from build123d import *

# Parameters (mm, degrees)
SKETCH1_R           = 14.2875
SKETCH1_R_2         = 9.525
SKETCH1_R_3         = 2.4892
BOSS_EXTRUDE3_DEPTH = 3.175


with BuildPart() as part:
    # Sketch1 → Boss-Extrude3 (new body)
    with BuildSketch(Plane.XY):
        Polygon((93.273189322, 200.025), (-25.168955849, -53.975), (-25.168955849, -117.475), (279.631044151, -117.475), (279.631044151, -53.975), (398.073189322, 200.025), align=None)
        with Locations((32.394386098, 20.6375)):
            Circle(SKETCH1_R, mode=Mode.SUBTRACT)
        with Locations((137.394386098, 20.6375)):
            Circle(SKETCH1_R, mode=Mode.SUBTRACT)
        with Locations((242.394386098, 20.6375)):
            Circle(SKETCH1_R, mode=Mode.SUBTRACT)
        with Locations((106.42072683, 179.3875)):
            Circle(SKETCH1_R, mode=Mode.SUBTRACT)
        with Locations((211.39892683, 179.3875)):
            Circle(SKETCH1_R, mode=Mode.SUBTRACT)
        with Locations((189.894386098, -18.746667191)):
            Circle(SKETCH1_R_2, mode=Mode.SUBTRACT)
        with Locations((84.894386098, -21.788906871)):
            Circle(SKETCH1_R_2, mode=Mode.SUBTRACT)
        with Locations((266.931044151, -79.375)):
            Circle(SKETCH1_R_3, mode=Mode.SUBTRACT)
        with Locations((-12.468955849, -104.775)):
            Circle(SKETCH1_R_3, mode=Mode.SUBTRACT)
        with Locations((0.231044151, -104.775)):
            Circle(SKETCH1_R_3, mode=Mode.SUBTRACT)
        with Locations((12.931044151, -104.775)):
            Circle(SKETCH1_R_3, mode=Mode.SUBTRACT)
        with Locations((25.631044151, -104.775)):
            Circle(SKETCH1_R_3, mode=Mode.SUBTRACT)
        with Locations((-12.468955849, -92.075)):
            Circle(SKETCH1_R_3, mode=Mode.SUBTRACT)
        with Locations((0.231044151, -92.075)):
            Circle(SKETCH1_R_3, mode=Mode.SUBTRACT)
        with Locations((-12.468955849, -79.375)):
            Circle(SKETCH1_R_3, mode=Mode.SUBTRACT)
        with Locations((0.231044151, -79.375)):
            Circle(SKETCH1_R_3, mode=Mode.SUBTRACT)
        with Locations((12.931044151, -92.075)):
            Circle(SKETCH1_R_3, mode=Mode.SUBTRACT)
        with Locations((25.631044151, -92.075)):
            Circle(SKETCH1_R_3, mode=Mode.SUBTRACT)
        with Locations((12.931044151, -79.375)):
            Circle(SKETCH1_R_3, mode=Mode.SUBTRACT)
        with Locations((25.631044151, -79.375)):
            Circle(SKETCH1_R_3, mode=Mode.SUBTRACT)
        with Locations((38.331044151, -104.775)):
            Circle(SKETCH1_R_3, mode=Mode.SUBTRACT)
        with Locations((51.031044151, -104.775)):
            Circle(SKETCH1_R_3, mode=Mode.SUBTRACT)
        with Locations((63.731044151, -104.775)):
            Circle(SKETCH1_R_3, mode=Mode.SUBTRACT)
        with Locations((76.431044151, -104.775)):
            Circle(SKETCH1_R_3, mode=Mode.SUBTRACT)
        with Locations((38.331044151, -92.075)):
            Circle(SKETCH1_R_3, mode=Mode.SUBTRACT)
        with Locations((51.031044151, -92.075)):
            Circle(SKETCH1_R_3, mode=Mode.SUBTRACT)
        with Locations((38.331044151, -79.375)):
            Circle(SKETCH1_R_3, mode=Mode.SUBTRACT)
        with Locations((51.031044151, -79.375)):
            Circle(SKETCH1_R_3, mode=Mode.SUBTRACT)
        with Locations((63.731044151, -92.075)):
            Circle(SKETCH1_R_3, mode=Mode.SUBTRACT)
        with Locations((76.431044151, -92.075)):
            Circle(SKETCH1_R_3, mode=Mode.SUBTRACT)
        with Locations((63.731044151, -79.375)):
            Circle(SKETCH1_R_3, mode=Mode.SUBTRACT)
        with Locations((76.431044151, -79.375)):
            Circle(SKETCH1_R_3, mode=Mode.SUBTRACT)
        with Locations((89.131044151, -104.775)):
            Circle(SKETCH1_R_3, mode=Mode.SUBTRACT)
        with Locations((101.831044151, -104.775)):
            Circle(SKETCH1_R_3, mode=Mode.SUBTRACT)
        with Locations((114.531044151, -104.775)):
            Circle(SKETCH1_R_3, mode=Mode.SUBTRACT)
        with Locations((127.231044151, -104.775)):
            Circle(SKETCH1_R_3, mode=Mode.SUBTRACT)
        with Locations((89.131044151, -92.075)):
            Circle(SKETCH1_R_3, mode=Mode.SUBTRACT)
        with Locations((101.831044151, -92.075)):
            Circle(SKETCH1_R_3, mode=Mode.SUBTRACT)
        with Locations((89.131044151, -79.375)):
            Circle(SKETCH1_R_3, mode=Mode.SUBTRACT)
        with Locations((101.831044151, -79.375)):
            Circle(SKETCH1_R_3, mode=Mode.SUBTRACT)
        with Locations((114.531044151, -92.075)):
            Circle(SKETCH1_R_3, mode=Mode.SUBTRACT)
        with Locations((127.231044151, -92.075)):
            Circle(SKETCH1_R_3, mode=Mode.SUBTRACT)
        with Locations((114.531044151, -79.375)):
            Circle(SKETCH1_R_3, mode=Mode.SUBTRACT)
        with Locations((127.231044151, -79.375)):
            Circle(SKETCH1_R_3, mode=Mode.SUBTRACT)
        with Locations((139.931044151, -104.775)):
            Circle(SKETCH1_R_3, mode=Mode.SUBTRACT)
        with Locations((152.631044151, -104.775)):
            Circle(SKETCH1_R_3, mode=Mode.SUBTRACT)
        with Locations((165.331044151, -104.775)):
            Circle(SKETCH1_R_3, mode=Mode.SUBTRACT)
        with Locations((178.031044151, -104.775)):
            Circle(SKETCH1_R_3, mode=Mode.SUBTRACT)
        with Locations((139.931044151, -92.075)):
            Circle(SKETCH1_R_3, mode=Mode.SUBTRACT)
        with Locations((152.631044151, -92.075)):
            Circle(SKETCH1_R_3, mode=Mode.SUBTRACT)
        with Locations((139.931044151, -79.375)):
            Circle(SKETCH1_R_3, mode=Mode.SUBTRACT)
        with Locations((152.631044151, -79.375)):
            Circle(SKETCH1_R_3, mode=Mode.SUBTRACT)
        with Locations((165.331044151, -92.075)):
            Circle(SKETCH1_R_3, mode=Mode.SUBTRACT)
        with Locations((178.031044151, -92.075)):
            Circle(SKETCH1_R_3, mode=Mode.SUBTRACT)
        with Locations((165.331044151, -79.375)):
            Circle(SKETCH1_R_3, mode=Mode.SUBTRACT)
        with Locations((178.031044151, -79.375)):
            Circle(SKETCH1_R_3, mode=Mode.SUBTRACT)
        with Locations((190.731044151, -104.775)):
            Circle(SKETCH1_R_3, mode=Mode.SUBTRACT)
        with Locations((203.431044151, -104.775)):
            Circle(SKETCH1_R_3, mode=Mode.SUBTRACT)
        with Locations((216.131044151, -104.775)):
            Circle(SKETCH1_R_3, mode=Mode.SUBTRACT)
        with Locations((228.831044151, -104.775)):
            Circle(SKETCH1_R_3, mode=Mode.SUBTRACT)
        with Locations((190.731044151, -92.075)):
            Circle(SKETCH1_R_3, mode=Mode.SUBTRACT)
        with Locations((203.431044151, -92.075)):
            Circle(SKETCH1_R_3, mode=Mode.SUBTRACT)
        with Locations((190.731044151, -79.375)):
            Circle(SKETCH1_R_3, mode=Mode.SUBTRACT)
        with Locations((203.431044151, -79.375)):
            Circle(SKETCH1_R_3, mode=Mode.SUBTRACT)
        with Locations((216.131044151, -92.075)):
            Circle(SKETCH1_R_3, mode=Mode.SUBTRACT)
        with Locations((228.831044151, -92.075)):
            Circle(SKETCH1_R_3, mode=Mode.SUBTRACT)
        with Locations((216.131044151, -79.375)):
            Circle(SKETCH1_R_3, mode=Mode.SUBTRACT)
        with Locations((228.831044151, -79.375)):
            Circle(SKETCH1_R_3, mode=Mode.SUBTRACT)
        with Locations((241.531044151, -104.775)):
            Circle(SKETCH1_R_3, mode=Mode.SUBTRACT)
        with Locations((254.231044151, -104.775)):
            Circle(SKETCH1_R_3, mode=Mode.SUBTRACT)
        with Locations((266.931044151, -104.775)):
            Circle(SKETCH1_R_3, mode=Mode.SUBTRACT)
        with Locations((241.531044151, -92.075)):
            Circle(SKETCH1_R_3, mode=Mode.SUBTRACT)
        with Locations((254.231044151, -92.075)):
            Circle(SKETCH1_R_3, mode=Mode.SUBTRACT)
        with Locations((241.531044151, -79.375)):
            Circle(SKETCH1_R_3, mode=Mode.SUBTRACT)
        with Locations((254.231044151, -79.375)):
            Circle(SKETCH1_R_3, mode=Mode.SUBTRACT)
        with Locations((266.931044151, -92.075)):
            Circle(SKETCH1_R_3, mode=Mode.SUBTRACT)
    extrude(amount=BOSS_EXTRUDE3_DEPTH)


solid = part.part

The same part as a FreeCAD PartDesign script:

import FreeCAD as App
import Part
import Sketcher

V = App.Vector
Q = App.Units.Quantity

doc = App.newDocument("Part")
params = doc.addObject("Spreadsheet::Sheet", "Params")
for row, (alias, value) in enumerate([
    ("sketch1_diameter", "0.75 in"),
    ("sketch1_width", "12 in"),
    ("sketch1_diameter2", "0.196 in"),
    ("sketch1_diameter3", "1.125 in"),
    ("sketch1_height", "2.5 in"),
    ("pad1_length", "0.125 in"),
], start=1):
    params.set(f"A{row}", alias)
    params.set(f"B{row}", "=" + value)
    params.setAlias(f"B{row}", alias)

body = doc.addObject("PartDesign::Body", "Body")

sketch1 = body.newObject("Sketcher::SketchObject", "Sketch")
sketch1.AttachmentSupport = (doc.getObject("XY_Plane"), [""])
sketch1.MapMode = "FlatFace"
sketch1.addGeometry([
    Part.LineSegment(V(93.3, 200, 0), V(-25.2, -54, 0)),
    Part.LineSegment(V(-25.2, -54, 0), V(-25.2, -117.5, 0)),
    Part.LineSegment(V(-25.2, -117.5, 0), V(279.6, -117.5, 0)),
    Part.LineSegment(V(279.6, -117.5, 0), V(279.6, -54, 0)),
    Part.LineSegment(V(279.6, -54, 0), V(398.1, 200, 0)),
    Part.LineSegment(V(398.1, 200, 0), V(93.3, 200, 0)),
    Part.Circle(V(-12.5, -104.8, 0), V(0, 0, 1), 2.5),
    Part.Circle(V(0.2, -104.8, 0), V(0, 0, 1), 2.5),
    Part.Circle(V(-12.5, -92.1, 0), V(0, 0, 1), 2.5),
    Part.Circle(V(0.2, -92.1, 0), V(0, 0, 1), 2.5),
    Part.Circle(V(12.9, -104.8, 0), V(0, 0, 1), 2.5),
    Part.Circle(V(12.9, -92.1, 0), V(0, 0, 1), 2.5),
    Part.Circle(V(-12.5, -79.4, 0), V(0, 0, 1), 2.5),
    Part.Circle(V(0.2, -79.4, 0), V(0, 0, 1), 2.5),
    Part.Circle(V(12.9, -79.4, 0), V(0, 0, 1), 2.5),
    Part.Circle(V(25.6, -104.8, 0), V(0, 0, 1), 2.5),
    Part.Circle(V(38.3, -104.8, 0), V(0, 0, 1), 2.5),
    Part.Circle(V(25.6, -92.1, 0), V(0, 0, 1), 2.5),
    Part.Circle(V(38.3, -92.1, 0), V(0, 0, 1), 2.5),
    Part.Circle(V(51, -104.8, 0), V(0, 0, 1), 2.5),
    Part.Circle(V(51, -92.1, 0), V(0, 0, 1), 2.5),
    Part.Circle(V(25.6, -79.4, 0), V(0, 0, 1), 2.5),
    Part.Circle(V(38.3, -79.4, 0), V(0, 0, 1), 2.5),
    Part.Circle(V(51, -79.4, 0), V(0, 0, 1), 2.5),
    Part.Circle(V(63.7, -104.8, 0), V(0, 0, 1), 2.5),
    Part.Circle(V(63.7, -92.1, 0), V(0, 0, 1), 2.5),
    Part.Circle(V(76.4, -104.8, 0), V(0, 0, 1), 2.5),
    Part.Circle(V(89.1, -104.8, 0), V(0, 0, 1), 2.5),
    Part.Circle(V(76.4, -92.1, 0), V(0, 0, 1), 2.5),
    Part.Circle(V(89.1, -92.1, 0), V(0, 0, 1), 2.5),
    Part.Circle(V(63.7, -79.4, 0), V(0, 0, 1), 2.5),
    Part.Circle(V(76.4, -79.4, 0), V(0, 0, 1), 2.5),
    Part.Circle(V(89.1, -79.4, 0), V(0, 0, 1), 2.5),
    Part.Circle(V(101.8, -104.8, 0), V(0, 0, 1), 2.5),
    Part.Circle(V(101.8, -92.1, 0), V(0, 0, 1), 2.5),
    Part.Circle(V(114.5, -104.8, 0), V(0, 0, 1), 2.5),
    Part.Circle(V(114.5, -92.1, 0), V(0, 0, 1), 2.5),
    Part.Circle(V(101.8, -79.4, 0), V(0, 0, 1), 2.5),
    Part.Circle(V(114.5, -79.4, 0), V(0, 0, 1), 2.5),
    Part.Circle(V(32.4, 20.6, 0), V(0, 0, 1), 14.3),
    Part.Circle(V(84.9, -21.8, 0), V(0, 0, 1), 9.5),
    Part.Circle(V(127.2, -104.8, 0), V(0, 0, 1), 2.5),
    Part.Circle(V(139.9, -104.8, 0), V(0, 0, 1), 2.5),
    Part.Circle(V(127.2, -92.1, 0), V(0, 0, 1), 2.5),
    Part.Circle(V(139.9, -92.1, 0), V(0, 0, 1), 2.5),
    Part.Circle(V(152.6, -104.8, 0), V(0, 0, 1), 2.5),
    Part.Circle(V(152.6, -92.1, 0), V(0, 0, 1), 2.5),
    Part.Circle(V(127.2, -79.4, 0), V(0, 0, 1), 2.5),
    Part.Circle(V(139.9, -79.4, 0), V(0, 0, 1), 2.5),
    Part.Circle(V(152.6, -79.4, 0), V(0, 0, 1), 2.5),
    Part.Circle(V(165.3, -104.8, 0), V(0, 0, 1), 2.5),
    Part.Circle(V(178, -104.8, 0), V(0, 0, 1), 2.5),
    Part.Circle(V(165.3, -92.1, 0), V(0, 0, 1), 2.5),
    Part.Circle(V(178, -92.1, 0), V(0, 0, 1), 2.5),
    Part.Circle(V(190.7, -104.8, 0), V(0, 0, 1), 2.5),
    Part.Circle(V(190.7, -92.1, 0), V(0, 0, 1), 2.5),
    Part.Circle(V(165.3, -79.4, 0), V(0, 0, 1), 2.5),
    Part.Circle(V(178, -79.4, 0), V(0, 0, 1), 2.5),
    Part.Circle(V(190.7, -79.4, 0), V(0, 0, 1), 2.5),
    Part.Circle(V(203.4, -104.8, 0), V(0, 0, 1), 2.5),
    Part.Circle(V(203.4, -92.1, 0), V(0, 0, 1), 2.5),
    Part.Circle(V(216.1, -104.8, 0), V(0, 0, 1), 2.5),
    Part.Circle(V(228.8, -104.8, 0), V(0, 0, 1), 2.5),
    Part.Circle(V(216.1, -92.1, 0), V(0, 0, 1), 2.5),
    Part.Circle(V(228.8, -92.1, 0), V(0, 0, 1), 2.5),
    Part.Circle(V(203.4, -79.4, 0), V(0, 0, 1), 2.5),
    Part.Circle(V(216.1, -79.4, 0), V(0, 0, 1), 2.5),
    Part.Circle(V(228.8, -79.4, 0), V(0, 0, 1), 2.5),
    Part.Circle(V(241.5, -104.8, 0), V(0, 0, 1), 2.5),
    Part.Circle(V(241.5, -92.1, 0), V(0, 0, 1), 2.5),
    Part.Circle(V(254.2, -104.8, 0), V(0, 0, 1), 2.5),
    Part.Circle(V(266.9, -104.8, 0), V(0, 0, 1), 2.5),
    Part.Circle(V(254.2, -92.1, 0), V(0, 0, 1), 2.5),
    Part.Circle(V(266.9, -92.1, 0), V(0, 0, 1), 2.5),
    Part.Circle(V(241.5, -79.4, 0), V(0, 0, 1), 2.5),
    Part.Circle(V(254.2, -79.4, 0), V(0, 0, 1), 2.5),
    Part.Circle(V(266.9, -79.4, 0), V(0, 0, 1), 2.5),
    Part.Circle(V(189.9, -18.7, 0), V(0, 0, 1), 9.5),
    Part.Circle(V(137.4, 20.6, 0), V(0, 0, 1), 14.3),
    Part.Circle(V(242.4, 20.6, 0), V(0, 0, 1), 14.3),
    Part.Circle(V(106.4, 179.4, 0), V(0, 0, 1), 14.3),
    Part.Circle(V(211.4, 179.4, 0), V(0, 0, 1), 14.3),
], False)
sketch1.addConstraint([
    Sketcher.Constraint("Coincident", 0, 2, 1, 1),
    Sketcher.Constraint("Coincident", 1, 2, 2, 1),
    Sketcher.Constraint("Coincident", 2, 2, 3, 1),
    Sketcher.Constraint("Coincident", 3, 2, 4, 1),
    Sketcher.Constraint("Coincident", 4, 2, 5, 1),
    Sketcher.Constraint("Coincident", 5, 2, 0, 1),
    Sketcher.Constraint("Vertical", 1),
    Sketcher.Constraint("Horizontal", 2),
    Sketcher.Constraint("Vertical", 3),
    Sketcher.Constraint("Horizontal", 5),
    Sketcher.Constraint("Equal", 6, 7),
    Sketcher.Constraint("Equal", 7, 8),
    Sketcher.Constraint("Equal", 8, 9),
    Sketcher.Constraint("Equal", 9, 10),
    Sketcher.Constraint("Equal", 10, 11),
    Sketcher.Constraint("Equal", 11, 12),
    Sketcher.Constraint("Equal", 12, 13),
    Sketcher.Constraint("Equal", 13, 14),
    Sketcher.Constraint("Equal", 14, 15),
    Sketcher.Constraint("Equal", 15, 16),
    Sketcher.Constraint("Equal", 16, 17),
    Sketcher.Constraint("Equal", 17, 18),
    Sketcher.Constraint("Equal", 18, 19),
    Sketcher.Constraint("Equal", 19, 20),
    Sketcher.Constraint("Equal", 20, 21),
    Sketcher.Constraint("Equal", 21, 22),
    Sketcher.Constraint("Equal", 22, 23),
    Sketcher.Constraint("Equal", 23, 24),
    Sketcher.Constraint("Equal", 24, 25),
    Sketcher.Constraint("Equal", 25, 26),
    Sketcher.Constraint("Equal", 26, 27),
    Sketcher.Constraint("Equal", 27, 28),
    Sketcher.Constraint("Equal", 28, 29),
    Sketcher.Constraint("Equal", 29, 30),
    Sketcher.Constraint("Equal", 30, 31),
    Sketcher.Constraint("Equal", 31, 32),
    Sketcher.Constraint("Equal", 32, 33),
    Sketcher.Constraint("Equal", 33, 34),
    Sketcher.Constraint("Equal", 34, 35),
    Sketcher.Constraint("Equal", 35, 36),
    Sketcher.Constraint("Equal", 36, 37),
    Sketcher.Constraint("Equal", 37, 38),
    Sketcher.Constraint("Equal", 38, 41),
    Sketcher.Constraint("Equal", 41, 42),
    Sketcher.Constraint("Equal", 42, 43),
    Sketcher.Constraint("Equal", 43, 44),
    Sketcher.Constraint("Equal", 44, 45),
    Sketcher.Constraint("Equal", 45, 46),
    Sketcher.Constraint("Equal", 46, 47),
    Sketcher.Constraint("Equal", 47, 48),
    Sketcher.Constraint("Equal", 48, 49),
    Sketcher.Constraint("Equal", 49, 50),
    Sketcher.Constraint("Equal", 50, 51),
    Sketcher.Constraint("Equal", 51, 52),
    Sketcher.Constraint("Equal", 52, 53),
    Sketcher.Constraint("Equal", 53, 54),
    Sketcher.Constraint("Equal", 54, 55),
    Sketcher.Constraint("Equal", 55, 56),
    Sketcher.Constraint("Equal", 56, 57),
    Sketcher.Constraint("Equal", 57, 58),
    Sketcher.Constraint("Equal", 58, 59),
    Sketcher.Constraint("Equal", 59, 60),
    Sketcher.Constraint("Equal", 60, 61),
    Sketcher.Constraint("Equal", 61, 62),
    Sketcher.Constraint("Equal", 62, 63),
    Sketcher.Constraint("Equal", 63, 64),
    Sketcher.Constraint("Equal", 64, 65),
    Sketcher.Constraint("Equal", 65, 66),
    Sketcher.Constraint("Equal", 66, 67),
    Sketcher.Constraint("Equal", 67, 68),
    Sketcher.Constraint("Equal", 68, 69),
    Sketcher.Constraint("Equal", 69, 70),
    Sketcher.Constraint("Equal", 70, 71),
    Sketcher.Constraint("Equal", 71, 72),
    Sketcher.Constraint("Equal", 72, 73),
    Sketcher.Constraint("Equal", 73, 74),
    Sketcher.Constraint("Equal", 74, 75),
    Sketcher.Constraint("Equal", 75, 76),
    Sketcher.Constraint("Equal", 40, 77),
    Sketcher.Constraint("Equal", 39, 78),
    Sketcher.Constraint("Equal", 78, 79),
    Sketcher.Constraint("Equal", 79, 80),
    Sketcher.Constraint("Equal", 80, 81),
    Sketcher.Constraint("Parallel", 0, 4),
    Sketcher.Constraint("Horizontal", 6, 3, 7, 3),
    Sketcher.Constraint("Horizontal", 8, 3, 9, 3),
    Sketcher.Constraint("Horizontal", 7, 3, 10, 3),
    Sketcher.Constraint("Horizontal", 9, 3, 11, 3),
    Sketcher.Constraint("Horizontal", 12, 3, 13, 3),
    Sketcher.Constraint("Horizontal", 13, 3, 14, 3),
    Sketcher.Constraint("Horizontal", 10, 3, 15, 3),
    Sketcher.Constraint("Horizontal", 15, 3, 16, 3),
    Sketcher.Constraint("Horizontal", 11, 3, 17, 3),
    Sketcher.Constraint("Horizontal", 17, 3, 18, 3),
    Sketcher.Constraint("Horizontal", 16, 3, 19, 3),
    Sketcher.Constraint("Horizontal", 18, 3, 20, 3),
    Sketcher.Constraint("Horizontal", 14, 3, 21, 3),
    Sketcher.Constraint("Horizontal", 21, 3, 22, 3),
    Sketcher.Constraint("Horizontal", 22, 3, 23, 3),
    Sketcher.Constraint("Horizontal", 19, 3, 24, 3),
    Sketcher.Constraint("Horizontal", 20, 3, 25, 3),
    Sketcher.Constraint("Horizontal", 24, 3, 26, 3),
    Sketcher.Constraint("Horizontal", 26, 3, 27, 3),
    Sketcher.Constraint("Horizontal", 25, 3, 28, 3),
    Sketcher.Constraint("Horizontal", 28, 3, 29, 3),
    Sketcher.Constraint("Horizontal", 23, 3, 30, 3),
    Sketcher.Constraint("Horizontal", 30, 3, 31, 3),
    Sketcher.Constraint("Horizontal", 31, 3, 32, 3),
    Sketcher.Constraint("Horizontal", 27, 3, 33, 3),
    Sketcher.Constraint("Horizontal", 29, 3, 34, 3),
    Sketcher.Constraint("Horizontal", 33, 3, 35, 3),
    Sketcher.Constraint("Horizontal", 34, 3, 36, 3),
    Sketcher.Constraint("Horizontal", 32, 3, 37, 3),
    Sketcher.Constraint("Horizontal", 37, 3, 38, 3),
    Sketcher.Constraint("Horizontal", 35, 3, 41, 3),
    Sketcher.Constraint("Horizontal", 41, 3, 42, 3),
    Sketcher.Constraint("Horizontal", 36, 3, 43, 3),
    Sketcher.Constraint("Horizontal", 43, 3, 44, 3),
    Sketcher.Constraint("Horizontal", 42, 3, 45, 3),
    Sketcher.Constraint("Horizontal", 44, 3, 46, 3),
    Sketcher.Constraint("Horizontal", 38, 3, 47, 3),
    Sketcher.Constraint("Horizontal", 47, 3, 48, 3),
    Sketcher.Constraint("Horizontal", 48, 3, 49, 3),
    Sketcher.Constraint("Horizontal", 45, 3, 50, 3),
    Sketcher.Constraint("Horizontal", 50, 3, 51, 3),
    Sketcher.Constraint("Horizontal", 46, 3, 52, 3),
    Sketcher.Constraint("Horizontal", 52, 3, 53, 3),
    Sketcher.Constraint("Horizontal", 51, 3, 54, 3),
    Sketcher.Constraint("Horizontal", 53, 3, 55, 3),
    Sketcher.Constraint("Horizontal", 49, 3, 56, 3),
    Sketcher.Constraint("Horizontal", 56, 3, 57, 3),
    Sketcher.Constraint("Horizontal", 57, 3, 58, 3),
    Sketcher.Constraint("Horizontal", 54, 3, 59, 3),
    Sketcher.Constraint("Horizontal", 55, 3, 60, 3),
    Sketcher.Constraint("Horizontal", 59, 3, 61, 3),
    Sketcher.Constraint("Horizontal", 61, 3, 62, 3),
    Sketcher.Constraint("Horizontal", 60, 3, 63, 3),
    Sketcher.Constraint("Horizontal", 63, 3, 64, 3),
    Sketcher.Constraint("Horizontal", 58, 3, 65, 3),
    Sketcher.Constraint("Horizontal", 65, 3, 66, 3),
    Sketcher.Constraint("Horizontal", 66, 3, 67, 3),
    Sketcher.Constraint("Horizontal", 62, 3, 68, 3),
    Sketcher.Constraint("Horizontal", 64, 3, 69, 3),
    Sketcher.Constraint("Horizontal", 68, 3, 70, 3),
    Sketcher.Constraint("Horizontal", 70, 3, 71, 3),
    Sketcher.Constraint("Horizontal", 69, 3, 72, 3),
    Sketcher.Constraint("Horizontal", 72, 3, 73, 3),
    Sketcher.Constraint("Horizontal", 67, 3, 74, 3),
    Sketcher.Constraint("Horizontal", 74, 3, 75, 3),
    Sketcher.Constraint("Horizontal", 75, 3, 76, 3),
    Sketcher.Constraint("Horizontal", 39, 3, 78, 3),
    Sketcher.Constraint("Horizontal", 78, 3, 79, 3),
    Sketcher.Constraint("Horizontal", 80, 3, 81, 3),
    Sketcher.Constraint("Horizontal", 0, 2, 3, 2),
    Sketcher.Constraint("Vertical", 6, 3, 8, 3),
    Sketcher.Constraint("Vertical", 7, 3, 9, 3),
    Sketcher.Constraint("Vertical", 10, 3, 11, 3),
    Sketcher.Constraint("Vertical", 8, 3, 12, 3),
    Sketcher.Constraint("Vertical", 9, 3, 13, 3),
    Sketcher.Constraint("Vertical", 11, 3, 14, 3),
    Sketcher.Constraint("Vertical", 15, 3, 17, 3),
    Sketcher.Constraint("Vertical", 16, 3, 18, 3),
    Sketcher.Constraint("Vertical", 19, 3, 20, 3),
    Sketcher.Constraint("Vertical", 17, 3, 21, 3),
    Sketcher.Constraint("Vertical", 18, 3, 22, 3),
    Sketcher.Constraint("Vertical", 20, 3, 23, 3),
    Sketcher.Constraint("Vertical", 24, 3, 25, 3),
    Sketcher.Constraint("Vertical", 26, 3, 28, 3),
    Sketcher.Constraint("Vertical", 27, 3, 29, 3),
    Sketcher.Constraint("Vertical", 25, 3, 30, 3),
    Sketcher.Constraint("Vertical", 28, 3, 31, 3),
    Sketcher.Constraint("Vertical", 29, 3, 32, 3),
    Sketcher.Constraint("Vertical", 33, 3, 34, 3),
    Sketcher.Constraint("Vertical", 35, 3, 36, 3),
    Sketcher.Constraint("Vertical", 34, 3, 37, 3),
    Sketcher.Constraint("Vertical", 36, 3, 38, 3),
    Sketcher.Constraint("Vertical", 41, 3, 43, 3),
    Sketcher.Constraint("Vertical", 42, 3, 44, 3),
    Sketcher.Constraint("Vertical", 45, 3, 46, 3),
    Sketcher.Constraint("Vertical", 43, 3, 47, 3),
    Sketcher.Constraint("Vertical", 44, 3, 48, 3),
    Sketcher.Constraint("Vertical", 46, 3, 49, 3),
    Sketcher.Constraint("Vertical", 50, 3, 52, 3),
    Sketcher.Constraint("Vertical", 51, 3, 53, 3),
    Sketcher.Constraint("Vertical", 54, 3, 55, 3),
    Sketcher.Constraint("Vertical", 52, 3, 56, 3),
    Sketcher.Constraint("Vertical", 53, 3, 57, 3),
    Sketcher.Constraint("Vertical", 55, 3, 58, 3),
    Sketcher.Constraint("Vertical", 59, 3, 60, 3),
    Sketcher.Constraint("Vertical", 61, 3, 63, 3),
    Sketcher.Constraint("Vertical", 62, 3, 64, 3),
    Sketcher.Constraint("Vertical", 60, 3, 65, 3),
    Sketcher.Constraint("Vertical", 63, 3, 66, 3),
    Sketcher.Constraint("Vertical", 64, 3, 67, 3),
    Sketcher.Constraint("Vertical", 68, 3, 69, 3),
    Sketcher.Constraint("Vertical", 70, 3, 72, 3),
    Sketcher.Constraint("Vertical", 71, 3, 73, 3),
    Sketcher.Constraint("Vertical", 69, 3, 74, 3),
    Sketcher.Constraint("Vertical", 72, 3, 75, 3),
    Sketcher.Constraint("Vertical", 73, 3, 76, 3),
    Sketcher.Constraint("Diameter", 40, Q("0.75 in")),
    Sketcher.Constraint("DistanceX", 2, 1, 2, 2, Q("12 in")),
    Sketcher.Constraint("Diameter", 6, Q("0.196 in")),
    Sketcher.Constraint("Diameter", 39, Q("1.125 in")),
    Sketcher.Constraint("DistanceY", 1, 2, 1, 1, Q("2.5 in")),
    Sketcher.Constraint("Angle", 0, Q("-115 deg")),
    Sketcher.Constraint("DistanceY", 6, 3, -1, 1, Q("4.125 in")),
    Sketcher.Constraint("DistanceY", 8, 3, -1, 1, Q("3.625 in")),
    Sketcher.Constraint("DistanceY", 12, 3, -1, 1, Q("3.125 in")),
    Sketcher.Constraint("DistanceY", -1, 1, 39, 3, Q("0.8125 in")),
    Sketcher.Constraint("DistanceY", -1, 1, 80, 3, Q("7.0625 in")),
    Sketcher.Constraint("DistanceY", 0, 2, -1, 1, Q("2.125 in")),
    Sketcher.Constraint("DistanceY", -1, 1, 4, 2, Q("7.875 in")),
    Sketcher.Constraint("DistanceX", -1, 1, 4, 2, 398.073189),
    Sketcher.Constraint("DistanceX", 6, 3, -1, 1, 12.468956),
    Sketcher.Constraint("DistanceX", -1, 1, 7, 3, 0.231044),
    Sketcher.Constraint("DistanceX", -1, 1, 10, 3, 12.931044),
    Sketcher.Constraint("DistanceX", -1, 1, 15, 3, 25.631044),
    Sketcher.Constraint("DistanceX", -1, 1, 16, 3, 38.331044),
    Sketcher.Constraint("DistanceX", -1, 1, 19, 3, 51.031044),
    Sketcher.Constraint("DistanceX", -1, 1, 24, 3, 63.731044),
    Sketcher.Constraint("DistanceX", -1, 1, 26, 3, 76.431044),
    Sketcher.Constraint("DistanceX", -1, 1, 27, 3, 89.131044),
    Sketcher.Constraint("DistanceX", -1, 1, 33, 3, 101.831044),
    Sketcher.Constraint("DistanceX", -1, 1, 35, 3, 114.531044),
    Sketcher.Constraint("DistanceX", -1, 1, 39, 3, 32.394386),
    Sketcher.Constraint("DistanceX", -1, 1, 40, 3, 84.894386),
    Sketcher.Constraint("DistanceY", 40, 3, -1, 1, 21.788907),
    Sketcher.Constraint("DistanceX", -1, 1, 41, 3, 127.231044),
    Sketcher.Constraint("DistanceX", -1, 1, 42, 3, 139.931044),
    Sketcher.Constraint("DistanceX", -1, 1, 45, 3, 152.631044),
    Sketcher.Constraint("DistanceX", -1, 1, 50, 3, 165.331044),
    Sketcher.Constraint("DistanceX", -1, 1, 51, 3, 178.031044),
    Sketcher.Constraint("DistanceX", -1, 1, 54, 3, 190.731044),
    Sketcher.Constraint("DistanceX", -1, 1, 59, 3, 203.431044),
    Sketcher.Constraint("DistanceX", -1, 1, 61, 3, 216.131044),
    Sketcher.Constraint("DistanceX", -1, 1, 62, 3, 228.831044),
    Sketcher.Constraint("DistanceX", -1, 1, 68, 3, 241.531044),
    Sketcher.Constraint("DistanceX", -1, 1, 70, 3, 254.231044),
    Sketcher.Constraint("DistanceX", -1, 1, 71, 3, 266.931044),
    Sketcher.Constraint("DistanceX", -1, 1, 77, 3, 189.894386),
    Sketcher.Constraint("DistanceY", 77, 3, -1, 1, 18.746667),
    Sketcher.Constraint("DistanceX", -1, 1, 78, 3, 137.394386),
    Sketcher.Constraint("DistanceX", -1, 1, 79, 3, 242.394386),
    Sketcher.Constraint("DistanceX", -1, 1, 80, 3, 106.420727),
    Sketcher.Constraint("DistanceX", -1, 1, 81, 3, 211.398927),
])
sketch1.setExpression("Constraints[200]", "Params.sketch1_diameter")
sketch1.setExpression("Constraints[201]", "Params.sketch1_width")
sketch1.setExpression("Constraints[202]", "Params.sketch1_diameter2")
sketch1.setExpression("Constraints[203]", "Params.sketch1_diameter3")
sketch1.setExpression("Constraints[204]", "Params.sketch1_height")
pad1 = body.newObject("PartDesign::Pad", "Pad")
pad1.Profile = sketch1
pad1.setExpression("Length", "Params.pad1_length")

doc.recompute()
